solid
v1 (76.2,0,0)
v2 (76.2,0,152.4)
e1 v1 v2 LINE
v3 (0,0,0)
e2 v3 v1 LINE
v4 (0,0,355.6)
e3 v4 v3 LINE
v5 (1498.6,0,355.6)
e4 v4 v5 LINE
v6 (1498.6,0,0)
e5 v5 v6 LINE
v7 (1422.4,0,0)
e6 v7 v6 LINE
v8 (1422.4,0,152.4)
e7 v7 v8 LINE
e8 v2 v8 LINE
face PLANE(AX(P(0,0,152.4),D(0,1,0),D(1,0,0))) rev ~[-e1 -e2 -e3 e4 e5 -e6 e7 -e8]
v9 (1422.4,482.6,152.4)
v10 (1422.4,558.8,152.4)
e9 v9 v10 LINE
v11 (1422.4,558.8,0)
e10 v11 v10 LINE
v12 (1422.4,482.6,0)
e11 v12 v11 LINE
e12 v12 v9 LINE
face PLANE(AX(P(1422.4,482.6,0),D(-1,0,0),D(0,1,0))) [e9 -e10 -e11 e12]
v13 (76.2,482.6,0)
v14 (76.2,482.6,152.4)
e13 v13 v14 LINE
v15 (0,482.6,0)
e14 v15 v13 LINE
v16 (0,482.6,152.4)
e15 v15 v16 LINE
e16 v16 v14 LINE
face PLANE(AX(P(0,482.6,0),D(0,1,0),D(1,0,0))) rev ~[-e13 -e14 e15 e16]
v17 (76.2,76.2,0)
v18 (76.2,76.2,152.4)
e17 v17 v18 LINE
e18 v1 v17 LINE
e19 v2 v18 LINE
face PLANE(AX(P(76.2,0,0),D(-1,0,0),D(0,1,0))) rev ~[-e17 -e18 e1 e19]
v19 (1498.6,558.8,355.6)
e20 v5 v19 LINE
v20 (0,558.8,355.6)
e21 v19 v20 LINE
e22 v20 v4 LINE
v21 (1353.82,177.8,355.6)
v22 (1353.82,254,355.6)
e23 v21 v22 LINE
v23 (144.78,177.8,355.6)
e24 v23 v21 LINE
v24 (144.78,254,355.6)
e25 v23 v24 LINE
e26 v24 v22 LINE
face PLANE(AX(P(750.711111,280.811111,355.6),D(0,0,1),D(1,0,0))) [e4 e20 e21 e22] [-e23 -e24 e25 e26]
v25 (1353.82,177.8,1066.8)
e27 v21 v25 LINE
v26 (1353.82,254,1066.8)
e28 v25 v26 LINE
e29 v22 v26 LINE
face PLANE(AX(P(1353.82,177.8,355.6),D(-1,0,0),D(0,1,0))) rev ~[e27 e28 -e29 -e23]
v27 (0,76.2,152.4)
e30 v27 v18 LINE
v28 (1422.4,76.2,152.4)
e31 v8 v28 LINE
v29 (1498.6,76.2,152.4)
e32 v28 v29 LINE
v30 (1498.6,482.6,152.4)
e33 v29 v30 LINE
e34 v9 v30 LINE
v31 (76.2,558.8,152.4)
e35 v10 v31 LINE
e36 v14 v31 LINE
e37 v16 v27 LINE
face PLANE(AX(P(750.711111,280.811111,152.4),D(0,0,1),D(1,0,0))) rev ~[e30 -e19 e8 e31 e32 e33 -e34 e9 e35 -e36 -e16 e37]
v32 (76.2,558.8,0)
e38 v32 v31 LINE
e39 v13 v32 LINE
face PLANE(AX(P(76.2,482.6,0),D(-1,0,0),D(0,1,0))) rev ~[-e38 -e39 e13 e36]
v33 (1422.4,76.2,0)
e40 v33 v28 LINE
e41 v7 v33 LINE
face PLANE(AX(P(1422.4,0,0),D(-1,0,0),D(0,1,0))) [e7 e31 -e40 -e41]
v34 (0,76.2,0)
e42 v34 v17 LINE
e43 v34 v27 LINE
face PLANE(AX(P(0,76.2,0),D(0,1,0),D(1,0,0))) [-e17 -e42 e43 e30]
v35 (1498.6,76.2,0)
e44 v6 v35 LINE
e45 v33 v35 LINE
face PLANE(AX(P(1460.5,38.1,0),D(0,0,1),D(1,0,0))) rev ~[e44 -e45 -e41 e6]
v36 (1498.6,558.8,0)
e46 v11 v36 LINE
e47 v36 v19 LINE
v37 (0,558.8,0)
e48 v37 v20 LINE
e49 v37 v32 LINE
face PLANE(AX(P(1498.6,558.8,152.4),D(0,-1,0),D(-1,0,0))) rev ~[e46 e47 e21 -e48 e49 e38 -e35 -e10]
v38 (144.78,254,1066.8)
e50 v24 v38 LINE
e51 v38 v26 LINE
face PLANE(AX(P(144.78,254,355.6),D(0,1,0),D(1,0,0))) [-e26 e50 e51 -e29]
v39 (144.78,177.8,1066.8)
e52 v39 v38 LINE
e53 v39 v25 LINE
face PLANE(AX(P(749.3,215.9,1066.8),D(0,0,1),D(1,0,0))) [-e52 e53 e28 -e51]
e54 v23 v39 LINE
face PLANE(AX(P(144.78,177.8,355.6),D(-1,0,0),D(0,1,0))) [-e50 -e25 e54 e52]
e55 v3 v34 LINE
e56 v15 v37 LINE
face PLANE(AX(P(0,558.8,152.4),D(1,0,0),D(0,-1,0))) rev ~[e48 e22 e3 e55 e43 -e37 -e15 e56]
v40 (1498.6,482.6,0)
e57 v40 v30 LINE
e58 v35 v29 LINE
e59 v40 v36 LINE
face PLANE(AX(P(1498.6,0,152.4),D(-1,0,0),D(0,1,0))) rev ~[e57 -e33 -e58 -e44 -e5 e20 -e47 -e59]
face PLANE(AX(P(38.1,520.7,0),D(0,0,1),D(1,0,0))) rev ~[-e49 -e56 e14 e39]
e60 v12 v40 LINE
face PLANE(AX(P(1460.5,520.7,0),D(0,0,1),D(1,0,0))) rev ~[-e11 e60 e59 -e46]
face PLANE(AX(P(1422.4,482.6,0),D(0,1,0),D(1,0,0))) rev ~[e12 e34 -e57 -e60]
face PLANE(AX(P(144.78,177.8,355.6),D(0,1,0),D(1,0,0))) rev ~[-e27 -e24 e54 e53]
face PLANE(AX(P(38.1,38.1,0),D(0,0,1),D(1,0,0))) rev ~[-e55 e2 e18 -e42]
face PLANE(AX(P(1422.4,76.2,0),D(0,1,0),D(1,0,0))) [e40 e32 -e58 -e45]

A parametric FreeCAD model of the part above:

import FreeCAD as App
import Part
import Sketcher
from FreeCAD import Vector
Q = App.Units.Quantity

doc = App.newDocument("Part")
body = doc.addObject("PartDesign::Body", "Body")

# Sketch on XY plane
sketch1 = body.newObject("Sketcher::SketchObject", "Sketch")
sketch1.AttachmentSupport = (doc.getObject("XY_Plane"), [""])
sketch1.MapMode = "FlatFace"
sketch1.addGeometry(Part.LineSegment(Vector(0, 76, 0), Vector(0, 0, 0)), False)
sketch1.addGeometry(Part.LineSegment(Vector(0, 0, 0), Vector(76, 0, 0)), False)
sketch1.addGeometry(Part.LineSegment(Vector(76, 0, 0), Vector(76, 76, 0)), False)
sketch1.addGeometry(Part.LineSegment(Vector(76, 76, 0), Vector(0, 76, 0)), False)
sketch1.addConstraint(Sketcher.Constraint("Coincident", 0, 2, 1, 1))
sketch1.addConstraint(Sketcher.Constraint("Coincident", 1, 2, 2, 1))
sketch1.addConstraint(Sketcher.Constraint("Coincident", 2, 2, 3, 1))
sketch1.addConstraint(Sketcher.Constraint("Coincident", 3, 2, 0, 1))
sketch1.addConstraint(Sketcher.Constraint("Vertical", 0))
sketch1.addConstraint(Sketcher.Constraint("Horizontal", 1))
sketch1.addConstraint(Sketcher.Constraint("Vertical", 2))
sketch1.addConstraint(Sketcher.Constraint("Horizontal", 3))
sketch1.addConstraint(Sketcher.Constraint("Coincident", 0, 2, -1, 1))
sketch1.addConstraint(Sketcher.Constraint("Equal", 3, 0))
sketch1.addConstraint(Sketcher.Constraint("DistanceX", 1, 1, 1, 2, Q("3 in")))
pad1 = body.newObject("PartDesign::Pad", "Pad")
pad1.Profile = sketch1
pad1.Length = Q("6 in")
body2 = doc.addObject("PartDesign::Body", "Body001")

# Sketch on XY plane
sketch2 = body2.newObject("Sketcher::SketchObject", "Sketch001")
sketch2.AttachmentSupport = (doc.getObject("XY_Plane001"), [""])
sketch2.MapMode = "FlatFace"
sketch2.addGeometry(Part.LineSegment(Vector(0, 559, 0), Vector(0, 483, 0)), False)
sketch2.addGeometry(Part.LineSegment(Vector(0, 483, 0), Vector(76, 483, 0)), False)
sketch2.addGeometry(Part.LineSegment(Vector(76, 483, 0), Vector(76, 559, 0)), False)
sketch2.addGeometry(Part.LineSegment(Vector(76, 559, 0), Vector(0, 559, 0)), False)
sketch2.addConstraint(Sketcher.Constraint("Coincident", 0, 2, 1, 1))
sketch2.addConstraint(Sketcher.Constraint("Coincident", 1, 2, 2, 1))
sketch2.addConstraint(Sketcher.Constraint("Coincident", 2, 2, 3, 1))
sketch2.addConstraint(Sketcher.Constraint("Coincident", 3, 2, 0, 1))
sketch2.addConstraint(Sketcher.Constraint("Vertical", 0))
sketch2.addConstraint(Sketcher.Constraint("Horizontal", 1))
sketch2.addConstraint(Sketcher.Constraint("Vertical", 2))
sketch2.addConstraint(Sketcher.Constraint("Horizontal", 3))
sketch2.addConstraint(Sketcher.Constraint("PointOnObject", 0, 2, -2))
sketch2.addConstraint(Sketcher.Constraint("Equal", 3, 0))
sketch2.addConstraint(Sketcher.Constraint("DistanceX", 1, 1, 1, 2, Q("3 in")))
sketch2.addConstraint(Sketcher.Constraint("DistanceY", -1, 1, 0, 2, Q("19 in")))
pad2 = body2.newObject("PartDesign::Pad", "Pad001")
pad2.Profile = sketch2
pad2.Length = Q("6 in")
body3 = doc.addObject("PartDesign::Body", "Body002")

# Sketch on XY plane
sketch3 = body3.newObject("Sketcher::SketchObject", "Sketch002")
sketch3.AttachmentSupport = (doc.getObject("XY_Plane002"), [""])
sketch3.MapMode = "FlatFace"
sketch3.addGeometry(Part.LineSegment(Vector(1422, 559, 0), Vector(1422, 483, 0)), False)
sketch3.addGeometry(Part.LineSegment(Vector(1422, 483, 0), Vector(1499, 483, 0)), False)
sketch3.addGeometry(Part.LineSegment(Vector(1499, 483, 0), Vector(1499, 559, 0)), False)
sketch3.addGeometry(Part.LineSegment(Vector(1499, 559, 0), Vector(1422, 559, 0)), False)
sketch3.addConstraint(Sketcher.Constraint("Coincident", 0, 2, 1, 1))
sketch3.addConstraint(Sketcher.Constraint("Coincident", 1, 2, 2, 1))
sketch3.addConstraint(Sketcher.Constraint("Coincident", 2, 2, 3, 1))
sketch3.addConstraint(Sketcher.Constraint("Coincident", 3, 2, 0, 1))
sketch3.addConstraint(Sketcher.Constraint("Vertical", 0))
sketch3.addConstraint(Sketcher.Constraint("Horizontal", 1))
sketch3.addConstraint(Sketcher.Constraint("Vertical", 2))
sketch3.addConstraint(Sketcher.Constraint("Horizontal", 3))
sketch3.addConstraint(Sketcher.Constraint("Equal", 3, 0))
sketch3.addConstraint(Sketcher.Constraint("DistanceX", 1, 1, 1, 2, Q("3 in")))
sketch3.addConstraint(Sketcher.Constraint("DistanceX", -1, 1, 0, 2, Q("56 in")))
sketch3.addConstraint(Sketcher.Constraint("DistanceY", -1, 1, 0, 2, Q("19 in")))
pad3 = body3.newObject("PartDesign::Pad", "Pad002")
pad3.Profile = sketch3
pad3.Length = Q("6 in")
body4 = doc.addObject("PartDesign::Body", "Body003")

# Sketch on XY plane
sketch4 = body4.newObject("Sketcher::SketchObject", "Sketch003")
sketch4.AttachmentSupport = (doc.getObject("XY_Plane003"), [""])
sketch4.MapMode = "FlatFace"
sketch4.addGeometry(Part.LineSegment(Vector(1422, 76, 0), Vector(1422, 0, 0)), False)
sketch4.addGeometry(Part.LineSegment(Vector(1422, 0, 0), Vector(1499, 0, 0)), False)
sketch4.addGeometry(Part.LineSegment(Vector(1499, 0, 0), Vector(1499, 76, 0)), False)
sketch4.addGeometry(Part.LineSegment(Vector(1499, 76, 0), Vector(1422, 76, 0)), False)
sketch4.addConstraint(Sketcher.Constraint("Coincident", 0, 2, 1, 1))
sketch4.addConstraint(Sketcher.Constraint("Coincident", 1, 2, 2, 1))
sketch4.addConstraint(Sketcher.Constraint("Coincident", 2, 2, 3, 1))
sketch4.addConstraint(Sketcher.Constraint("Coincident", 3, 2, 0, 1))
sketch4.addConstraint(Sketcher.Constraint("Vertical", 0))
sketch4.addConstraint(Sketcher.Constraint("Horizontal", 1))
sketch4.addConstraint(Sketcher.Constraint("Vertical", 2))
sketch4.addConstraint(Sketcher.Constraint("Horizontal", 3))
sketch4.addConstraint(Sketcher.Constraint("PointOnObject", 0, 2, -1))
sketch4.addConstraint(Sketcher.Constraint("Equal", 3, 0))
sketch4.addConstraint(Sketcher.Constraint("DistanceX", 1, 1, 1, 2, Q("3 in")))
sketch4.addConstraint(Sketcher.Constraint("DistanceX", -1, 1, 0, 2, Q("56 in")))
pad4 = body4.newObject("PartDesign::Pad", "Pad003")
pad4.Profile = sketch4
pad4.Length = Q("6 in")
body.AllowCompound = True
doc.recompute()

boolean = body.newObject("PartDesign::Boolean", "Boolean")
boolean.Type = "Fuse"
boolean.addObjects([body2])
doc.recompute()

boolean2 = body.newObject("PartDesign::Boolean", "Boolean001")
boolean2.Type = "Fuse"
boolean2.addObjects([body3])
doc.recompute()

boolean3 = body.newObject("PartDesign::Boolean", "Boolean002")
boolean3.Type = "Fuse"
boolean3.addObjects([body4])

# Sketch on XY plane
sketch5 = body.newObject("Sketcher::SketchObject", "Sketch004")
sketch5.AttachmentSupport = (doc.getObject("XY_Plane"), [""])
sketch5.MapMode = "FlatFace"
sketch5.AttachmentOffset = App.Placement(Vector(0, 0, 6 * 25.4), App.Rotation())
sketch5.addGeometry(Part.LineSegment(Vector(1499, 0, 0), Vector(1499, 559, 0)), False)
sketch5.addGeometry(Part.LineSegment(Vector(1499, 559, 0), Vector(0, 559, 0)), False)
sketch5.addGeometry(Part.LineSegment(Vector(0, 559, 0), Vector(0, 0, 0)), False)
sketch5.addGeometry(Part.LineSegment(Vector(0, 0, 0), Vector(1499, 0, 0)), False)
sketch5.addConstraint(Sketcher.Constraint("Coincident", 0, 2, 1, 1))
sketch5.addConstraint(Sketcher.Constraint("Coincident", 1, 2, 2, 1))
sketch5.addConstraint(Sketcher.Constraint("Coincident", 2, 2, 3, 1))
sketch5.addConstraint(Sketcher.Constraint("Coincident", 3, 2, 0, 1))
sketch5.addConstraint(Sketcher.Constraint("Vertical", 0))
sketch5.addConstraint(Sketcher.Constraint("Horizontal", 1))
sketch5.addConstraint(Sketcher.Constraint("Vertical", 2))
sketch5.addConstraint(Sketcher.Constraint("Horizontal", 3))
sketch5.addConstraint(Sketcher.Constraint("Coincident", 2, 2, -1, 1))
sketch5.addConstraint(Sketcher.Constraint("DistanceX", 1, 2, 1, 1, Q("59 in")))
sketch5.addConstraint(Sketcher.Constraint("DistanceY", 0, 1, 0, 2, Q("22 in")))
pad5 = body.newObject("PartDesign::Pad", "Pad004")
pad5.Profile = sketch5
pad5.Length = Q("8 in")

# Sketch on XY plane
sketch6 = body.newObject("Sketcher::SketchObject", "Sketch005")
sketch6.AttachmentSupport = (doc.getObject("XY_Plane"), [""])
sketch6.MapMode = "FlatFace"
sketch6.AttachmentOffset = App.Placement(Vector(0, 0, 14 * 25.4), App.Rotation())
sketch6.addGeometry(Part.LineSegment(Vector(145, 254, 0), Vector(145, 178, 0)), False)
sketch6.addGeometry(Part.LineSegment(Vector(145, 178, 0), Vector(1354, 178, 0)), False)
sketch6.addGeometry(Part.LineSegment(Vector(1354, 178, 0), Vector(1354, 254, 0)), False)
sketch6.addGeometry(Part.LineSegment(Vector(1354, 254, 0), Vector(145, 254, 0)), False)
sketch6.addConstraint(Sketcher.Constraint("Coincident", 0, 2, 1, 1))
sketch6.addConstraint(Sketcher.Constraint("Coincident", 1, 2, 2, 1))
sketch6.addConstraint(Sketcher.Constraint("Coincident", 2, 2, 3, 1))
sketch6.addConstraint(Sketcher.Constraint("Coincident", 3, 2, 0, 1))
sketch6.addConstraint(Sketcher.Constraint("Vertical", 0))
sketch6.addConstraint(Sketcher.Constraint("Horizontal", 1))
sketch6.addConstraint(Sketcher.Constraint("Vertical", 2))
sketch6.addConstraint(Sketcher.Constraint("Horizontal", 3))
sketch6.addConstraint(Sketcher.Constraint("DistanceY", 0, 2, 0, 1, Q("3 in")))
sketch6.addConstraint(Sketcher.Constraint("DistanceX", 1, 1, 1, 2, Q("47.6 in")))
sketch6.addConstraint(Sketcher.Constraint("DistanceY", -1, 1, 0, 2, Q("7 in")))
sketch6.addConstraint(Sketcher.Constraint("DistanceX", -1, 1, 0, 2, Q("5.7 in")))
pad6 = body.newObject("PartDesign::Pad", "Pad005")
pad6.Profile = sketch6
pad6.Length = Q("28 in")

doc.recompute()
